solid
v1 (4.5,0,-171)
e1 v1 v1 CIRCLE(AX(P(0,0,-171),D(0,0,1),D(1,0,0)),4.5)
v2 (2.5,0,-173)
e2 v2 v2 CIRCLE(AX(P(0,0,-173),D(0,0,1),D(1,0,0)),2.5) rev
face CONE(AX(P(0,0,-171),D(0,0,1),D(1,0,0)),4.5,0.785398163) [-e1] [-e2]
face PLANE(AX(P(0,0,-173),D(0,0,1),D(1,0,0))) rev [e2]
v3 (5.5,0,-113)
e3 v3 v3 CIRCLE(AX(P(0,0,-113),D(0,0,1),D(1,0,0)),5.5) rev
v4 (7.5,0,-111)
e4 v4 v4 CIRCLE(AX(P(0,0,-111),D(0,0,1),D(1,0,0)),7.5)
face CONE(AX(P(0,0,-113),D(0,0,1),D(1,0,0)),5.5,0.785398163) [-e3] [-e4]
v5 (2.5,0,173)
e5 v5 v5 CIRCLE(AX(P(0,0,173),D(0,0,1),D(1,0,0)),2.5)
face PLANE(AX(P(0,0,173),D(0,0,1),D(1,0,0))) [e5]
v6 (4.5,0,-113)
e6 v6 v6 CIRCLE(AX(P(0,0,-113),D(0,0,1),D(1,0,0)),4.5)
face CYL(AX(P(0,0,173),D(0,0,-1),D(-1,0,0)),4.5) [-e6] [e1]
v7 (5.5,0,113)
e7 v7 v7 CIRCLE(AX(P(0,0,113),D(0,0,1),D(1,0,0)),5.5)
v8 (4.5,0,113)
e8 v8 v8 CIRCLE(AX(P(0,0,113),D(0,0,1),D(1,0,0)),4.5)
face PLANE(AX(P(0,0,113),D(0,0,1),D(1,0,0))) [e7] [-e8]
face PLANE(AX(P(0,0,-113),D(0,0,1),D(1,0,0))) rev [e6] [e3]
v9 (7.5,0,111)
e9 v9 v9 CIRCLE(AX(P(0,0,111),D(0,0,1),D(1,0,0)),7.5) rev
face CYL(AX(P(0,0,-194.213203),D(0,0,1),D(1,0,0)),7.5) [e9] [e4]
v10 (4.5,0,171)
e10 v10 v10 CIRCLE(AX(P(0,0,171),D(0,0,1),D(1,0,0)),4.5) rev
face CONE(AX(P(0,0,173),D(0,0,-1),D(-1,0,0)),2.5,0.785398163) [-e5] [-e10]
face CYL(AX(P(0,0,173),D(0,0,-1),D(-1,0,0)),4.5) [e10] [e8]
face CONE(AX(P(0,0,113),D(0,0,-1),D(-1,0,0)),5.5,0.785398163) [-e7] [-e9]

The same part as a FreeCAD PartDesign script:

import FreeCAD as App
import Part
import Sketcher


def edges_at(feature, points):
    """Names of the edges that pass closest to the given points."""
    edges = feature.Shape.Edges
    near = lambda p: min(range(len(edges)), key=lambda i: edges[i].distToShape(Part.Vertex(*p))[0])
    return sorted({f"Edge{near(p) + 1}" for p in points})

doc = App.newDocument("Part")
body = doc.addObject("PartDesign::Body", "Body")

sketch1 = body.newObject("Sketcher::SketchObject", "Sketch")
sketch1.AttachmentSupport = (doc.getObject("XY_Plane"), [""])
sketch1.MapMode = "FlatFace"
sketch1.addGeometry(Part.Circle(App.Vector(0, 0, 0), App.Vector(0, 0, 1), 4.5), False)
sketch1.addConstraint(Sketcher.Constraint("Coincident", 0, 3, -1, 1))
sketch1.addConstraint(Sketcher.Constraint("Diameter", 0, 9.0))
pad1 = body.newObject("PartDesign::Pad", "Pad")
pad1.Profile = sketch1
pad1.Length = 346
pad1.Midplane = True

sketch2 = body.newObject("Sketcher::SketchObject", "Sketch001")
sketch2.AttachmentSupport = (doc.getObject("XY_Plane"), [""])
sketch2.MapMode = "FlatFace"
sketch2.AttachmentOffset = App.Placement(App.Vector(0, 0, 113), App.Rotation())
sketch2.addGeometry(Part.Circle(App.Vector(0, 0, 0), App.Vector(0, 0, 1), 8), False)
sketch2.addConstraint(Sketcher.Constraint("Coincident", 0, 3, -1, 1))
sketch2.addConstraint(Sketcher.Constraint("Diameter", 0, 15.0))
pad2 = body.newObject("PartDesign::Pad", "Pad001")
pad2.Profile = sketch2
pad2.Length = 226
pad2.Reversed = True
doc.recompute()

chamfer = body.newObject("PartDesign::Chamfer", "Chamfer")
chamfer.Base = (pad2, edges_at(pad2, [
    (-4.5, 0, -173),
    (-4.5, 0, 173),
    (-7.5, 0, 113),
    (-7.5, 0, -113),
]))
chamfer.Size = 2

doc.recompute()
